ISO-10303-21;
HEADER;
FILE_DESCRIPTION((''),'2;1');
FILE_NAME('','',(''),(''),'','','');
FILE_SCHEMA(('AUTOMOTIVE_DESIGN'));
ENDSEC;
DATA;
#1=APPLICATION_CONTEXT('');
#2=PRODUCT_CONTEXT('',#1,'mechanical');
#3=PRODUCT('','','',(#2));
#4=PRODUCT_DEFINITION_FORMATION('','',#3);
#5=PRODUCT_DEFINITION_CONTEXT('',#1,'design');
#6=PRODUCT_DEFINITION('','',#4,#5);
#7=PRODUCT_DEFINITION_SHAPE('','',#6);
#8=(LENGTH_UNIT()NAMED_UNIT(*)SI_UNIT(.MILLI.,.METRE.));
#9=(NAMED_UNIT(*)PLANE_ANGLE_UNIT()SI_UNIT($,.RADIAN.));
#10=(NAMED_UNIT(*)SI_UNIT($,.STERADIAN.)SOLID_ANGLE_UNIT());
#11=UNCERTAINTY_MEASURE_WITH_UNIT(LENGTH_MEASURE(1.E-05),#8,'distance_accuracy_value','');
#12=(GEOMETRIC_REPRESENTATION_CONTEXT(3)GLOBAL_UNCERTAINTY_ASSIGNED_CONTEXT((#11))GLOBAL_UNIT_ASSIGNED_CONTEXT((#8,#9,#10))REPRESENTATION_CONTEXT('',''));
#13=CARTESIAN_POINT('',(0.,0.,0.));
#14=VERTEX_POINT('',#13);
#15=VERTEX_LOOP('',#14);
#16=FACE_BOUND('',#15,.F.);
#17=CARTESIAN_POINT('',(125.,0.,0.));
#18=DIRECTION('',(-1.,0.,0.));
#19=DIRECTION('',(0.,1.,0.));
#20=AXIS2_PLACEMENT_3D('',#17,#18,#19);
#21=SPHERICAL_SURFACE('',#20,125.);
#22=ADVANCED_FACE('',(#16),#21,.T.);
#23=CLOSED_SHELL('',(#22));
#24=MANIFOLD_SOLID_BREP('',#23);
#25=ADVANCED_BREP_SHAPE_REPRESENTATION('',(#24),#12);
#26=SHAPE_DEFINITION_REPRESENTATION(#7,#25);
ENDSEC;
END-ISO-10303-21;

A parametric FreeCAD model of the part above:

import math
import FreeCAD as App
import Part
import Sketcher
Q = App.Units.Quantity

doc = App.newDocument("Part")
body = doc.addObject("PartDesign::Body", "Body")

sketch1 = body.newObject("Sketcher::SketchObject", "Sketch")
sketch1.AttachmentSupport = (doc.getObject("XY_Plane"), [""])
sketch1.MapMode = "FlatFace"
sketch1.addGeometry([
    Part.ArcOfCircle(Part.Circle(App.Vector(125, 0, 0), App.Vector(0, 0, 1), 125), math.radians(0), math.radians(180)),
    Part.LineSegment(App.Vector(0, 0, 0), App.Vector(250, 0, 0)),
], False)
sketch1.addConstraint([
    Sketcher.Constraint("Coincident", 0, 1, 1, 2),
    Sketcher.Constraint("Coincident", 1, 1, 0, 2),
    Sketcher.Constraint("Horizontal", 1),
    Sketcher.Constraint("Coincident", 1, 1, -1, 1),
    Sketcher.Constraint("PointOnObject", 0, 3, -1),
    Sketcher.Constraint("Radius", 0, Q("125 mm")),
])
revolution = body.newObject("PartDesign::Revolution", "Revolution")
revolution.Profile = sketch1
revolution.ReferenceAxis = (sketch1, ["H_Axis"])
revolution.Angle = 360

doc.recompute()
